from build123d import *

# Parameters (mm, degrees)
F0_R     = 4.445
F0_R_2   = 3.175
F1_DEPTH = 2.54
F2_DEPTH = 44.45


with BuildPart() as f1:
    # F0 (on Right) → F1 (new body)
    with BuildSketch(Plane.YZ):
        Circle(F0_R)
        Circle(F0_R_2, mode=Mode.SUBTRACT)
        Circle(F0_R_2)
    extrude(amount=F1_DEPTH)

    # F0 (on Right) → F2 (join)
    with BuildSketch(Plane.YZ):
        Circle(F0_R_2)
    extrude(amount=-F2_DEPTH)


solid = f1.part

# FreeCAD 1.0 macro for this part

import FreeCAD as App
import Part
import Sketcher
from FreeCAD import Vector
Q = App.Units.Quantity

doc = App.newDocument("Part")
body = doc.addObject("PartDesign::Body", "Body")

# Sketch on YZ plane
sketch1 = body.newObject("Sketcher::SketchObject", "Sketch")
sketch1.AttachmentSupport = (doc.getObject("YZ_Plane"), [""])
sketch1.MapMode = "FlatFace"
sketch1.addGeometry(Part.Circle(Vector(0, 0, 0), Vector(0, 0, 1), 4.4), False)
sketch1.addConstraint([
    Sketcher.Constraint("Coincident", 0, 3, -1, 1),
    Sketcher.Constraint("Diameter", 0, Q("0.35 in")),
])
pad1 = body.newObject("PartDesign::Pad", "Pad")
pad1.Profile = sketch1
pad1.Length = Q("0.1 in")

# Sketch on YZ plane
sketch2 = body.newObject("Sketcher::SketchObject", "Sketch001")
sketch2.AttachmentSupport = (doc.getObject("YZ_Plane"), [""])
sketch2.MapMode = "FlatFace"
sketch2.addGeometry(Part.Circle(Vector(0, 0, 0), Vector(0, 0, 1), 3.2), False)
sketch2.addConstraint([
    Sketcher.Constraint("Coincident", 0, 3, -1, 1),
    Sketcher.Constraint("Diameter", 0, Q("0.25 in")),
])
pad2 = body.newObject("PartDesign::Pad", "Pad001")
pad2.Profile = sketch2
pad2.Length = Q("1.75 in")
pad2.Reversed = True

doc.recompute()
